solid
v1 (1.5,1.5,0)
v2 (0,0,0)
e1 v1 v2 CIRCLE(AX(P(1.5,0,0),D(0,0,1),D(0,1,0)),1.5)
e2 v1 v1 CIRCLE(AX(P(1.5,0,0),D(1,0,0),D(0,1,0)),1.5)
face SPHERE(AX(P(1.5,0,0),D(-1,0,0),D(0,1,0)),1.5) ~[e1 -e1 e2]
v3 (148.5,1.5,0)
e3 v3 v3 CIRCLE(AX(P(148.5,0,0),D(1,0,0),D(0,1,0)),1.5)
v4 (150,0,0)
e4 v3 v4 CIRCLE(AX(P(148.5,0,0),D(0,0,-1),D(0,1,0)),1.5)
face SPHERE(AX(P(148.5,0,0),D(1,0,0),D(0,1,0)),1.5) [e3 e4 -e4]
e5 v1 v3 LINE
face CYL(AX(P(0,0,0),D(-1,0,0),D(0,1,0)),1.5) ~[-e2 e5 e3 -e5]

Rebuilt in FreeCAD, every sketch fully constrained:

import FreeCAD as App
import Part
import Sketcher

V = App.Vector


def edges_at(feature, points):
    """Names of the edges that pass closest to the given points."""
    edges = feature.Shape.Edges
    near = lambda p: min(range(len(edges)), key=lambda i: edges[i].distToShape(Part.Vertex(*p))[0])
    return sorted({f"Edge{near(p) + 1}" for p in points})

doc = App.newDocument("Part")
body = doc.addObject("PartDesign::Body", "Body")

# Sketch on YZ plane
sketch1 = body.newObject("Sketcher::SketchObject", "Sketch")
sketch1.AttachmentSupport = (doc.getObject("YZ_Plane"), [""])
sketch1.MapMode = "FlatFace"
sketch1.addGeometry(Part.Circle(V(0, 0, 0), V(0, 0, 1), 1.5), False)
sketch1.addConstraint(Sketcher.Constraint("Coincident", 0, 3, -1, 1))
sketch1.addConstraint(Sketcher.Constraint("Diameter", 0, 3.0))
pad1 = body.newObject("PartDesign::Pad", "Pad")
pad1.Profile = sketch1
pad1.Length = 150
doc.recompute()

fillet = body.newObject("PartDesign::Fillet", "Fillet")
fillet.Base = (pad1, edges_at(pad1, [(0, -1.5, 0), (150, -1.5, 0)]))
fillet.Radius = 1.5

doc.recompute()
